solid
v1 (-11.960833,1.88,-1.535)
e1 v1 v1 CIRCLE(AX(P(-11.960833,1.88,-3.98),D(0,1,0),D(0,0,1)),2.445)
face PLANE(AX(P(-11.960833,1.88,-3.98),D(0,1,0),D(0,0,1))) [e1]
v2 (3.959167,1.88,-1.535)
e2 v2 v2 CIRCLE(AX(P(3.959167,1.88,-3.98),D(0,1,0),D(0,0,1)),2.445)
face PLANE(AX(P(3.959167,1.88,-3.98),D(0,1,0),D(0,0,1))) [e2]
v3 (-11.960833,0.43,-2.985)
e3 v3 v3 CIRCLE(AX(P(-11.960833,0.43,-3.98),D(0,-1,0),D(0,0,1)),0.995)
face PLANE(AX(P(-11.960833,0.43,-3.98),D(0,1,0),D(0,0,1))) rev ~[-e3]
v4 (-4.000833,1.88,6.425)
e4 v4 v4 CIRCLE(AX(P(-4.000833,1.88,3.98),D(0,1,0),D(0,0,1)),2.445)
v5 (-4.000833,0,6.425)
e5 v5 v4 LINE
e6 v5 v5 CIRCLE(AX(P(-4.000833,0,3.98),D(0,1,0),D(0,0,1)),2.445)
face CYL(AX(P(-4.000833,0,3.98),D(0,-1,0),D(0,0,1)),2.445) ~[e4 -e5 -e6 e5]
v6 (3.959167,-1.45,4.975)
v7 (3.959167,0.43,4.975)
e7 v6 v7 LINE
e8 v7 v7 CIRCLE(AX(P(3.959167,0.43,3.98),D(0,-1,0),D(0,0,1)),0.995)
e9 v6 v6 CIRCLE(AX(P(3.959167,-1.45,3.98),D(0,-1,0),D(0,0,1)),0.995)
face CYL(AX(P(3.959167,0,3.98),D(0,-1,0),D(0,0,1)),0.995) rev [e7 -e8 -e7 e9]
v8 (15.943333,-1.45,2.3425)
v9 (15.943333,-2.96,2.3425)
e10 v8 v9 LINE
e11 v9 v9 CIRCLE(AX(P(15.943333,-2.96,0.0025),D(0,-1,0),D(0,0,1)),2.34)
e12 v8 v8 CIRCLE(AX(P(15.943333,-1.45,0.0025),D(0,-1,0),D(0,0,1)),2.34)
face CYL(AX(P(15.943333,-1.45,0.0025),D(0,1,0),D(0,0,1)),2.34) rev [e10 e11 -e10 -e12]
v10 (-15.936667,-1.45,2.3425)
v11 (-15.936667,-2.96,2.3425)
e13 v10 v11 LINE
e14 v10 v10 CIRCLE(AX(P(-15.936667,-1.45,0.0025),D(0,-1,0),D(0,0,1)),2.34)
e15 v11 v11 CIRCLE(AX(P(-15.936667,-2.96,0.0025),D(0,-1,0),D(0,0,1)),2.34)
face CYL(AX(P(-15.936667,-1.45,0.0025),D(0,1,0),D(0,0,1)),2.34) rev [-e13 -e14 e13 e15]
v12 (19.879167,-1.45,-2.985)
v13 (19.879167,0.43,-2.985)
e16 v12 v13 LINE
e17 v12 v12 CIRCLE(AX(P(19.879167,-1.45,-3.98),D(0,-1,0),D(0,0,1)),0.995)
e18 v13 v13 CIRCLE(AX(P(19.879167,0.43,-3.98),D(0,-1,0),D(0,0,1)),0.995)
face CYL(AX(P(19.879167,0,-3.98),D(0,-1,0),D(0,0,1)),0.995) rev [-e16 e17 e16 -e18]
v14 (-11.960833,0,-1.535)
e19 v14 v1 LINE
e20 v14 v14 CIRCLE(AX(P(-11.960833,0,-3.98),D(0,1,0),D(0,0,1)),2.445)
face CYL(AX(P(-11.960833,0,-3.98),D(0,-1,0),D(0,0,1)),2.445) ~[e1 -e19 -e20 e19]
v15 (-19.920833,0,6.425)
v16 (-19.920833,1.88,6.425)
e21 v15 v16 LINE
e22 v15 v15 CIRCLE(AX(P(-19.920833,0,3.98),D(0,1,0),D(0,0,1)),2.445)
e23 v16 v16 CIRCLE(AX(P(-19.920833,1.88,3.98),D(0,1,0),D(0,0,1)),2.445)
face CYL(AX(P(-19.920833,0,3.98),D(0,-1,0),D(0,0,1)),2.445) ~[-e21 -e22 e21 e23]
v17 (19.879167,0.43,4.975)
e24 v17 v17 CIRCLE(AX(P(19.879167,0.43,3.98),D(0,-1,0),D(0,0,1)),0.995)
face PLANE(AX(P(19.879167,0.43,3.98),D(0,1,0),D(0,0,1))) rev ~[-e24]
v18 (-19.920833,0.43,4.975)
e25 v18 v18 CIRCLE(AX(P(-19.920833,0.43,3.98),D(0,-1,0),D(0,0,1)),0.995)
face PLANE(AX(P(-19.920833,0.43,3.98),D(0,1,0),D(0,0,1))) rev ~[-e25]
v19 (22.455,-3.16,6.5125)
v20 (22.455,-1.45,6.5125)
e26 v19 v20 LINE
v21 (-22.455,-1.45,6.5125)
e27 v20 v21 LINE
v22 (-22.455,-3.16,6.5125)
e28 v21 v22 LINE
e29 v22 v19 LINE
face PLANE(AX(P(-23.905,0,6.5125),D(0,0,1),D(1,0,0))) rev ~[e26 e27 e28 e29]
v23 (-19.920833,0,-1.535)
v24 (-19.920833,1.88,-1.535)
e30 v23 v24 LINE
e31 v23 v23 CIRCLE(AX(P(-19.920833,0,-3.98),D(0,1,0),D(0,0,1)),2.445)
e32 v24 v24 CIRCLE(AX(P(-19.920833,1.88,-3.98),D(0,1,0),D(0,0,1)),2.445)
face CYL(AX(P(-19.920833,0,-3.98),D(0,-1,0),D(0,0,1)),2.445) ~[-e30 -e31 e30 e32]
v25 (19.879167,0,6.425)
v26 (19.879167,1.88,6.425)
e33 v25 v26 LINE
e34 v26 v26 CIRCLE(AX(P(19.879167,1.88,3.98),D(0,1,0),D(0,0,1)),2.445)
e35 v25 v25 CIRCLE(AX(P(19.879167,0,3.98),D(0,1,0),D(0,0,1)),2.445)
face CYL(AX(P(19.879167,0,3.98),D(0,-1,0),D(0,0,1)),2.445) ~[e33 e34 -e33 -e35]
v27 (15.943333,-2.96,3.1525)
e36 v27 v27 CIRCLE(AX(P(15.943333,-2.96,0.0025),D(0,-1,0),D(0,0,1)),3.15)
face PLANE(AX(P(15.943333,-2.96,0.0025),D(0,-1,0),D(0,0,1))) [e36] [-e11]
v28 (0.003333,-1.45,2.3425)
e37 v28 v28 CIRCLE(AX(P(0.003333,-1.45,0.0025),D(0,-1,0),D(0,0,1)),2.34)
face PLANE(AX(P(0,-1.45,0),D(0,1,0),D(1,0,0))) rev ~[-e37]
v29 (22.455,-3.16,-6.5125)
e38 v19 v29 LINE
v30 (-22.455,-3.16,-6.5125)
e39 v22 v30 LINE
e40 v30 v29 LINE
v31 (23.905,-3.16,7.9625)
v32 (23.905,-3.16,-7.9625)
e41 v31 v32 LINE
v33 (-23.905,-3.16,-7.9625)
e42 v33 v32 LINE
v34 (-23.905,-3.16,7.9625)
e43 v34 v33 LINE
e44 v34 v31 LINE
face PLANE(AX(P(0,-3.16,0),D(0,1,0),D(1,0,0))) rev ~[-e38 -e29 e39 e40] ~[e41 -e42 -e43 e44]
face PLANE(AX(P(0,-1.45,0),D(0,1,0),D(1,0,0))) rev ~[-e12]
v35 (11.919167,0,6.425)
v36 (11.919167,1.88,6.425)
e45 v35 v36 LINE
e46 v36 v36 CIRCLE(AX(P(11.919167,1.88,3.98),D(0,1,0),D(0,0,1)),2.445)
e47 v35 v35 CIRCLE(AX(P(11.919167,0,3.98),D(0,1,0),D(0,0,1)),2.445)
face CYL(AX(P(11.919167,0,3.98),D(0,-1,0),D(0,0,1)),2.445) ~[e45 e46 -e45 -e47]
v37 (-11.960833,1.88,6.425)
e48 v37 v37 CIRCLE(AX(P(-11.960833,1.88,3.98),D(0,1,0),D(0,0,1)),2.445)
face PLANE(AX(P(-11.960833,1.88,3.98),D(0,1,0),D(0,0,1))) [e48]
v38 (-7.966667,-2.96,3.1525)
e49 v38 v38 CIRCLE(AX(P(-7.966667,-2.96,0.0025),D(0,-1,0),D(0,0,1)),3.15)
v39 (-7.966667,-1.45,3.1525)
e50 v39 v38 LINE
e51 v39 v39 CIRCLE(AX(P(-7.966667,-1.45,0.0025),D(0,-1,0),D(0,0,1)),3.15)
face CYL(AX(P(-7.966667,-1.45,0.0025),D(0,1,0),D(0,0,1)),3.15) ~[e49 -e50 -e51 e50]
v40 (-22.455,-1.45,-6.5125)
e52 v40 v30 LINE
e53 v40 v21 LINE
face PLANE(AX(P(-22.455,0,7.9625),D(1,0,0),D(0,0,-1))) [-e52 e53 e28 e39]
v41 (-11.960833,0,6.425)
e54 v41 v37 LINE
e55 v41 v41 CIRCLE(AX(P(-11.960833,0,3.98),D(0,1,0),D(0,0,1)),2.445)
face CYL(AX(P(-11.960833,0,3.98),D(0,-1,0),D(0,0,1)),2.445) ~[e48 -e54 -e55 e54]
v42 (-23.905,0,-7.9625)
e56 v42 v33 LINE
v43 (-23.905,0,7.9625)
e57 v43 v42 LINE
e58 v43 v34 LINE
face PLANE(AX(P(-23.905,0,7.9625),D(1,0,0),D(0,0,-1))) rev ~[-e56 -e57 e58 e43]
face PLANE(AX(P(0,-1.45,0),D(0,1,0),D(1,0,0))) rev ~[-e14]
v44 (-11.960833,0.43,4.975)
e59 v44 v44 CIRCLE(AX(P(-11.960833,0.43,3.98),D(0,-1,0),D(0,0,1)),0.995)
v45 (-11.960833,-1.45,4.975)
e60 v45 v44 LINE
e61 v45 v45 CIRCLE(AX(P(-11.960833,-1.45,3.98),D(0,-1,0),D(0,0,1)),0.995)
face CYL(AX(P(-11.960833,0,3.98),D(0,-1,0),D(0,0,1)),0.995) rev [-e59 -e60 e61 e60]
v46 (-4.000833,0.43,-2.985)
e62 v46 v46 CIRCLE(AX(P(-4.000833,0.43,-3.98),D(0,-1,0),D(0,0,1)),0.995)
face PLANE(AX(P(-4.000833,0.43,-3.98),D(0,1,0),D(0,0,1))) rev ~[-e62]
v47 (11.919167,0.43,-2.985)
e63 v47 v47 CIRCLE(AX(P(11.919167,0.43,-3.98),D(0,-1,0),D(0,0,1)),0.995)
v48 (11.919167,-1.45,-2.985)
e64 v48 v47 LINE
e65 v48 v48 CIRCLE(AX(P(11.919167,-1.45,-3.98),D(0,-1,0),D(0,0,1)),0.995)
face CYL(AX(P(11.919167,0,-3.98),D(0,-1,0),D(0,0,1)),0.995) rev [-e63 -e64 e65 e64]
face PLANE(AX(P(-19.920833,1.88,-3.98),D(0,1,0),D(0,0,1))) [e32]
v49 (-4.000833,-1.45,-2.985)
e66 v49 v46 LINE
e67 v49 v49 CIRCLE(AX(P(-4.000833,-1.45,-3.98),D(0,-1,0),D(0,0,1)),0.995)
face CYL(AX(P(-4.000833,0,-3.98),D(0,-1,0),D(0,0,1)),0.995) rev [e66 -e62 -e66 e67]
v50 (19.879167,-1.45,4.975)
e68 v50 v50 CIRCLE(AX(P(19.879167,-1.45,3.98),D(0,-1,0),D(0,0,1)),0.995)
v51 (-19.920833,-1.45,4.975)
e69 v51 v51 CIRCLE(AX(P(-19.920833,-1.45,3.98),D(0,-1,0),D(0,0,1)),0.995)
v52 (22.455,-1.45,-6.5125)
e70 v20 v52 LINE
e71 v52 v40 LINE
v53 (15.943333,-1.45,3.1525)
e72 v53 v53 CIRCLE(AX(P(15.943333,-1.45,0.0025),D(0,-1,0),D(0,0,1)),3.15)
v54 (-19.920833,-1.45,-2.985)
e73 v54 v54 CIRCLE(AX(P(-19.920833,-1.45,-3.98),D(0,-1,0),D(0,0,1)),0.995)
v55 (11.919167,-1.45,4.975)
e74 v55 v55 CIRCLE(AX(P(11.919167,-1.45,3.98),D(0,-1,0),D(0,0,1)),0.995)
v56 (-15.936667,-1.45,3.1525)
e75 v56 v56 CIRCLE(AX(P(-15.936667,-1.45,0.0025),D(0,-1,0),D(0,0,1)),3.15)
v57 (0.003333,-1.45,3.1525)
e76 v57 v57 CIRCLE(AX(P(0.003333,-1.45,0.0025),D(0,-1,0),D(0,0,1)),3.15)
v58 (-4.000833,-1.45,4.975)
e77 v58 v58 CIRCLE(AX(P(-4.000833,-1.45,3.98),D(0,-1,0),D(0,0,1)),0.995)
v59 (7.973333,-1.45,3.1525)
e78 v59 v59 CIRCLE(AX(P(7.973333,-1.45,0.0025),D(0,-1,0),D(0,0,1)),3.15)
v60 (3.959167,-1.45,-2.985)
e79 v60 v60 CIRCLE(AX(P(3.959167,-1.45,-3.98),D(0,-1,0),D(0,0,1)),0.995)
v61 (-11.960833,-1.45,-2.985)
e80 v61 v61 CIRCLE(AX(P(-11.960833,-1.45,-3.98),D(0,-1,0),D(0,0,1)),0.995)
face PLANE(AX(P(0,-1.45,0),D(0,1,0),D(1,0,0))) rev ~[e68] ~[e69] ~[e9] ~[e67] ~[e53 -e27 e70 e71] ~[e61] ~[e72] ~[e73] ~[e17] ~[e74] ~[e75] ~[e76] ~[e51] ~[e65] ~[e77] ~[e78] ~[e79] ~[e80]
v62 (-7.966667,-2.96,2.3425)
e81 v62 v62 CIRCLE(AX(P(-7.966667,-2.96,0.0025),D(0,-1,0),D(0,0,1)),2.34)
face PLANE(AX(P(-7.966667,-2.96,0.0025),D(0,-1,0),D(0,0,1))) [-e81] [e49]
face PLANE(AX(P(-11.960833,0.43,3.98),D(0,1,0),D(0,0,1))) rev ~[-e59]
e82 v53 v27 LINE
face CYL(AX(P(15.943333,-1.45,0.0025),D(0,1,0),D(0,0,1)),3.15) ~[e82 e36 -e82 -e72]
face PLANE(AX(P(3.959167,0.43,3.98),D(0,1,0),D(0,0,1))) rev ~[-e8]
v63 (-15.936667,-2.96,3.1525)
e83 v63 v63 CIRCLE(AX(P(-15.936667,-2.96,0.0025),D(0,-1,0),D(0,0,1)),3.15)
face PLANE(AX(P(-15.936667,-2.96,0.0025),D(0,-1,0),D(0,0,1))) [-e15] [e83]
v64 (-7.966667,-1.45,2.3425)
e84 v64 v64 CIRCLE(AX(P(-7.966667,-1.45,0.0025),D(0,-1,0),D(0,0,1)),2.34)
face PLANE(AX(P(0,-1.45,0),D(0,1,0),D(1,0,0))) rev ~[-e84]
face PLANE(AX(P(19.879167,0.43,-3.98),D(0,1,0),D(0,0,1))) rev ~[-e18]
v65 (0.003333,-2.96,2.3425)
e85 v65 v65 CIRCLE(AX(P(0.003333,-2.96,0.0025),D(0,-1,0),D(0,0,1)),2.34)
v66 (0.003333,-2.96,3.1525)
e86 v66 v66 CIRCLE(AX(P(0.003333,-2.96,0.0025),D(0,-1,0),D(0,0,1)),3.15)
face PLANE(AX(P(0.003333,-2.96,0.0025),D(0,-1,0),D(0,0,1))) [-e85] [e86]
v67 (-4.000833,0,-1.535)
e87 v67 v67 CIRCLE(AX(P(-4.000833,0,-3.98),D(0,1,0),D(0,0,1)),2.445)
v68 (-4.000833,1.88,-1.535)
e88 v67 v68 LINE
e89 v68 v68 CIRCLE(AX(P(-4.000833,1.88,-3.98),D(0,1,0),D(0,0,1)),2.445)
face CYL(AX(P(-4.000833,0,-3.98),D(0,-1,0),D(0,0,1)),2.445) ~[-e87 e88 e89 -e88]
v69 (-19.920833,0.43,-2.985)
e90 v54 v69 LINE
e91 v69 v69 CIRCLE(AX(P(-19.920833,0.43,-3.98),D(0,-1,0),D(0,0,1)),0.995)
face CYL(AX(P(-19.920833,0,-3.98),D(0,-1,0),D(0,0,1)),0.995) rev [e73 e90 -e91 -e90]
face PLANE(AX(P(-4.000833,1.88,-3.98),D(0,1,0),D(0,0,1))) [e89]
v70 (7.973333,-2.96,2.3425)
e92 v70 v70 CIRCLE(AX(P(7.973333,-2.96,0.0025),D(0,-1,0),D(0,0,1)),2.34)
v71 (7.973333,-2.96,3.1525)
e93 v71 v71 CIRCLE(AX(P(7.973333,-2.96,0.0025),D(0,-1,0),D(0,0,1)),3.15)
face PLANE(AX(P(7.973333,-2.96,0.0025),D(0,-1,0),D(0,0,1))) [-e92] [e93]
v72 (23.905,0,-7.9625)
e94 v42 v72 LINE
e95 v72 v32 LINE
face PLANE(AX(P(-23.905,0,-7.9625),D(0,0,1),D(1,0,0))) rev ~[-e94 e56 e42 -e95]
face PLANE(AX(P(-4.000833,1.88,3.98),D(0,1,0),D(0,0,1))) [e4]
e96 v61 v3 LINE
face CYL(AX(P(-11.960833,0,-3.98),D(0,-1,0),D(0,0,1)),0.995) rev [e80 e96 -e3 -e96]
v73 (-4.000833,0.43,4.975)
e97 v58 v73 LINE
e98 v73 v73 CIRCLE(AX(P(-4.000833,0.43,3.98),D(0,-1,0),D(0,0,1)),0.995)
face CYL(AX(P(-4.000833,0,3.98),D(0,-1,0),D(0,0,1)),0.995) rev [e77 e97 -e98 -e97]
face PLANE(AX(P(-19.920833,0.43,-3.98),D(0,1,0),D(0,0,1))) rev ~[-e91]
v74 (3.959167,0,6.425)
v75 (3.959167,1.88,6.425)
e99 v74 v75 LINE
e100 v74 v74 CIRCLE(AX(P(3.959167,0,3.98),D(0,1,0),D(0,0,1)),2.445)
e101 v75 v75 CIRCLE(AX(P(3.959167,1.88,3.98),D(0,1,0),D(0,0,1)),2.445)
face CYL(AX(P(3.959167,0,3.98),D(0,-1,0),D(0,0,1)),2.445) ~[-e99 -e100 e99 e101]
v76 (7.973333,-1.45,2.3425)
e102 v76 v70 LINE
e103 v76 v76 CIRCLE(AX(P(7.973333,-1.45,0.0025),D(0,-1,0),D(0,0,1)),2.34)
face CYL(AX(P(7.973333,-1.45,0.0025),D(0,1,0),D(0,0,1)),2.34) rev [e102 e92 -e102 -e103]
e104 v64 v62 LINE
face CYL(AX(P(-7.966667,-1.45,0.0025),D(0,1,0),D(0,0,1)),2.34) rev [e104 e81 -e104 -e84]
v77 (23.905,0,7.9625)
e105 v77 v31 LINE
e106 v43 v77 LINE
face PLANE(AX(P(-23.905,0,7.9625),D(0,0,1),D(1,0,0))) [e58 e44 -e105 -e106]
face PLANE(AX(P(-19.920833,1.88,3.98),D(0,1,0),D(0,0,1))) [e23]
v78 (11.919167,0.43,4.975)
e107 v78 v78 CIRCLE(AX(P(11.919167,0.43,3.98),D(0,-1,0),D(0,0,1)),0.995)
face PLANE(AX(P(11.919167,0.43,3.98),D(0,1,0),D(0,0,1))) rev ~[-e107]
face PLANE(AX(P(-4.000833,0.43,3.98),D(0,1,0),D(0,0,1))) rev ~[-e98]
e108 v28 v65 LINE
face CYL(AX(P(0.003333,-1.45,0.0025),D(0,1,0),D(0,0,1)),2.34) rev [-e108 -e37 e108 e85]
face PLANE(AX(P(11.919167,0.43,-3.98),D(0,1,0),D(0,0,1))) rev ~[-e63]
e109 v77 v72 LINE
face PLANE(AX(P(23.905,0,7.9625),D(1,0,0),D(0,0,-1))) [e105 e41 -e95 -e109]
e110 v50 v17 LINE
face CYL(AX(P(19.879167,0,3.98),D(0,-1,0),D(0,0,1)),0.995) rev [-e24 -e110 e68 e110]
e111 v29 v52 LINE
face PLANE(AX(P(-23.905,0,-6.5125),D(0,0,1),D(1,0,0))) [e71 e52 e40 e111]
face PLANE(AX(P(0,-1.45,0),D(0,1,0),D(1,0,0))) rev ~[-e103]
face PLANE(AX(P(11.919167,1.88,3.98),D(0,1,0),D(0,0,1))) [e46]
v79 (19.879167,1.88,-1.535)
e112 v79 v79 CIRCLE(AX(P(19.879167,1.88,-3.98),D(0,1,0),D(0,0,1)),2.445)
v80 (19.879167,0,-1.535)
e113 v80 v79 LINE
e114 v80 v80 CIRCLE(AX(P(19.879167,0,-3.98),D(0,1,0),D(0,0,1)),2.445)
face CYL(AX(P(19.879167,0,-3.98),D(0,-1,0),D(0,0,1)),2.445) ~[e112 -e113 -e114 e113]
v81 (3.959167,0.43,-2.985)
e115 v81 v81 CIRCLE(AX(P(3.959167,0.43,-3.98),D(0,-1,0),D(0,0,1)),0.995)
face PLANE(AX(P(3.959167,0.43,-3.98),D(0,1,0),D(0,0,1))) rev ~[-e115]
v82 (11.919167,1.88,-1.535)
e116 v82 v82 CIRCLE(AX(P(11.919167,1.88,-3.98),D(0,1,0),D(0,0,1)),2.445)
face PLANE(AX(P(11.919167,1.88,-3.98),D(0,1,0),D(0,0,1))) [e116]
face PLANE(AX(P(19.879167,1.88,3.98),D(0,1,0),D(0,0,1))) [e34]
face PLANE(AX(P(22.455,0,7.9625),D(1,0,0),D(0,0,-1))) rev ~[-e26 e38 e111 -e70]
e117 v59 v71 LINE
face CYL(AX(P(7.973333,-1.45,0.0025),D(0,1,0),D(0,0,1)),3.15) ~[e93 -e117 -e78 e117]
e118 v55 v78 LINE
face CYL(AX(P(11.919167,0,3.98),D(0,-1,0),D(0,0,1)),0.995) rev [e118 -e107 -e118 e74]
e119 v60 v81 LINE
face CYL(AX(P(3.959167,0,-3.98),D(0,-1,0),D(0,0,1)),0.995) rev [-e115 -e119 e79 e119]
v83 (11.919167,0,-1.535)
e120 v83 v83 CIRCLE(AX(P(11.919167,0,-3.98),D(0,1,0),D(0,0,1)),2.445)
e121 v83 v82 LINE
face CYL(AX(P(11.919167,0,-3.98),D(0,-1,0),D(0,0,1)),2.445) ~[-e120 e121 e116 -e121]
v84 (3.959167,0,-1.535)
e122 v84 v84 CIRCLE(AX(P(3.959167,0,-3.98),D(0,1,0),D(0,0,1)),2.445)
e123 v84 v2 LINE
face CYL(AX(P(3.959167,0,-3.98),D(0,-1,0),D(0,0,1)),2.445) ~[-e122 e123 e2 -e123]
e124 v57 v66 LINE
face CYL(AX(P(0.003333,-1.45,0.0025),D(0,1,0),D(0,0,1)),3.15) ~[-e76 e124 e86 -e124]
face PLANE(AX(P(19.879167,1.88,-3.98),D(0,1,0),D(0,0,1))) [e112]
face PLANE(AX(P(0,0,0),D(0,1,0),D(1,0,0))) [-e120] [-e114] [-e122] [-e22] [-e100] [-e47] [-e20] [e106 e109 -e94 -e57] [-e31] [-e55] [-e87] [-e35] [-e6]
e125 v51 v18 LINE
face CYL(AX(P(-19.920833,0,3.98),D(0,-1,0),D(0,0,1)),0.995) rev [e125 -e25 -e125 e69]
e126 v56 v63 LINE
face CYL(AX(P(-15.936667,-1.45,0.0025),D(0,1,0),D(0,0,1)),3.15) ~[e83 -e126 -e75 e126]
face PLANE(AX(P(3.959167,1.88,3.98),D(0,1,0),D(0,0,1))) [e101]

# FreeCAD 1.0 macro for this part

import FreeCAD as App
import Part
import Sketcher

V = App.Vector


def faces_at(feature, points):
    """Names of the faces that lie closest to the given points."""
    faces = feature.Shape.Faces
    near = lambda p: min(range(len(faces)), key=lambda i: faces[i].distToShape(Part.Vertex(*p))[0])
    return sorted({f"Face{near(p) + 1}" for p in points})


def add_polygon(sketch, points):
    """Adds a closed chain of lines whose ends are joined by coincident constraints."""
    first, n = sketch.GeometryCount, len(points)
    for a, b in zip(points, points[1:] + points[:1]):
        sketch.addGeometry(Part.LineSegment(App.Vector(*a, 0), App.Vector(*b, 0)), False)
    for i in range(n):
        sketch.addConstraint(Sketcher.Constraint("Coincident", first + i, 2, first + (i + 1) % n, 1))

doc = App.newDocument("Part")
body = doc.addObject("PartDesign::Body", "Body")

# Sketch on XZ plane
sketch1 = body.newObject("Sketcher::SketchObject", "Sketch")
sketch1.AttachmentSupport = (doc.getObject("XZ_Plane"), [""])
sketch1.MapMode = "FlatFace"
add_polygon(sketch1, [(-24, -8), (-24, 8), (24, 8), (24, -8)])  # lines 0-3
sketch1.addConstraint([
    Sketcher.Constraint("Vertical", 0),
    Sketcher.Constraint("Horizontal", 1),
    Sketcher.Constraint("Vertical", 2),
    Sketcher.Constraint("Horizontal", 3),
    Sketcher.Constraint("Symmetric", 0, 2, 2, 2, -1, 1),
    Sketcher.Constraint("DistanceX", 1, 1, 1, 2, 47.81),
    Sketcher.Constraint("DistanceY", 0, 1, 0, 2, 15.925),
])
pad1 = body.newObject("PartDesign::Pad", "Pad")
pad1.Profile = sketch1
pad1.Length = 3.16

# Sketch on XZ plane
sketch2 = body.newObject("Sketcher::SketchObject", "Sketch001")
sketch2.AttachmentSupport = (doc.getObject("XZ_Plane"), [""])
sketch2.MapMode = "FlatFace"
sketch2.addGeometry([
    Part.Circle(V(-19.9, -4, 0), V(0, 0, 1), 2.4),  # 0
    Part.Circle(V(-12, -4, 0), V(0, 0, 1), 2.4),  # 1
    Part.Circle(V(-4, -4, 0), V(0, 0, 1), 2.4),  # 2
    Part.Circle(V(4, -4, 0), V(0, 0, 1), 2.4),  # 3
    Part.Circle(V(11.9, -4, 0), V(0, 0, 1), 2.4),  # 4
    Part.Circle(V(19.9, -4, 0), V(0, 0, 1), 2.4),  # 5
    Part.Circle(V(-12, 4, 0), V(0, 0, 1), 2.4),  # 6
    Part.Circle(V(-4, 4, 0), V(0, 0, 1), 2.4),  # 7
    Part.Circle(V(4, 4, 0), V(0, 0, 1), 2.4),  # 8
    Part.Circle(V(11.9, 4, 0), V(0, 0, 1), 2.4),  # 9
    Part.Circle(V(19.9, 4, 0), V(0, 0, 1), 2.4),  # 10
    Part.Circle(V(-19.9, 4, 0), V(0, 0, 1), 2.4),  # 11
], False)
sketch2.addConstraint([
    Sketcher.Constraint("Equal", 0, 1),
    Sketcher.Constraint("Equal", 1, 2),
    Sketcher.Constraint("Equal", 2, 3),
    Sketcher.Constraint("Equal", 3, 4),
    Sketcher.Constraint("Equal", 4, 5),
    Sketcher.Constraint("Equal", 5, 6),
    Sketcher.Constraint("Equal", 6, 7),
    Sketcher.Constraint("Equal", 7, 8),
    Sketcher.Constraint("Equal", 8, 9),
    Sketcher.Constraint("Equal", 9, 10),
    Sketcher.Constraint("Equal", 10, 11),
    Sketcher.Constraint("Symmetric", 1, 3, 6, 3, -1),
    Sketcher.Constraint("Symmetric", 2, 3, 7, 3, -1),
    Sketcher.Constraint("Symmetric", 3, 3, 8, 3, -1),
    Sketcher.Constraint("Symmetric", 4, 3, 9, 3, -1),
    Sketcher.Constraint("Symmetric", 5, 3, 10, 3, -1),
    Sketcher.Constraint("Symmetric", 0, 3, 11, 3, -1),
    Sketcher.Constraint("Horizontal", 0, 3, 1, 3),
    Sketcher.Constraint("Horizontal", 1, 3, 2, 3),
    Sketcher.Constraint("Horizontal", 2, 3, 3, 3),
    Sketcher.Constraint("Horizontal", 3, 3, 4, 3),
    Sketcher.Constraint("Horizontal", 4, 3, 5, 3),
    Sketcher.Constraint("Diameter", 0, 4.89),
    Sketcher.Constraint("DistanceX", 0, 3, 5, 3, 39.8),
    Sketcher.Constraint("DistanceY", 0, 3, -1, 1, 3.98),
    Sketcher.Constraint("DistanceX", 0, 3, 1, 3, 7.96),
    Sketcher.Constraint("DistanceX", 1, 3, 2, 3, 7.96),
    Sketcher.Constraint("DistanceX", 2, 3, 3, 3, 7.96),
    Sketcher.Constraint("DistanceX", 3, 3, 4, 3, 7.96),
    Sketcher.Constraint("DistanceX", 0, 3, -1, 1, 19.920833),
])
pad2 = body.newObject("PartDesign::Pad", "Pad001")
pad2.Profile = sketch2
pad2.Length = 1.88
pad2.Reversed = True
doc.recompute()

thickness = body.newObject("PartDesign::Thickness", "Thickness")
thickness.Base = (pad2, faces_at(pad2, [(0, -3.16, 0)]))
thickness.Value = 1.45
thickness.Reversed = True
thickness.Join = "Intersection"

# Sketch on XZ plane
sketch3 = body.newObject("Sketcher::SketchObject", "Sketch002")
sketch3.AttachmentSupport = (doc.getObject("XZ_Plane"), [""])
sketch3.MapMode = "FlatFace"
sketch3.AttachmentOffset = App.Placement(V(0, 0, 1.45), App.Rotation())
sketch3.addGeometry([
    Part.Circle(V(-15.9, 0, 0), V(0, 0, 1), 3.1),  # 0
    Part.Circle(V(-15.9, 0, 0), V(0, 0, 1), 2.3),  # 1
    Part.Circle(V(-8, 0, 0), V(0, 0, 1), 3.1),  # 2
    Part.Circle(V(-8, 0, 0), V(0, 0, 1), 2.3),  # 3
    Part.Circle(V(0, 0, 0), V(0, 0, 1), 3.1),  # 4
    Part.Circle(V(0, 0, 0), V(0, 0, 1), 2.3),  # 5
    Part.Circle(V(8, 0, 0), V(0, 0, 1), 3.1),  # 6
    Part.Circle(V(8, 0, 0), V(0, 0, 1), 2.3),  # 7
    Part.Circle(V(15.9, 0, 0), V(0, 0, 1), 3.1),  # 8
    Part.Circle(V(15.9, 0, 0), V(0, 0, 1), 2.3),  # 9
], False)
sketch3.addConstraint([
    Sketcher.Constraint("Coincident", 1, 3, 0, 3),
    Sketcher.Constraint("Coincident", 3, 3, 2, 3),
    Sketcher.Constraint("Coincident", 5, 3, 4, 3),
    Sketcher.Constraint("Coincident", 7, 3, 6, 3),
    Sketcher.Constraint("Coincident", 9, 3, 8, 3),
    Sketcher.Constraint("Equal", 0, 2),
    Sketcher.Constraint("Equal", 1, 3),
    Sketcher.Constraint("Equal", 2, 4),
    Sketcher.Constraint("Equal", 3, 5),
    Sketcher.Constraint("Equal", 4, 6),
    Sketcher.Constraint("Equal", 5, 7),
    Sketcher.Constraint("Equal", 6, 8),
    Sketcher.Constraint("Equal", 7, 9),
    Sketcher.Constraint("Horizontal", 1, 3, 2, 3),
    Sketcher.Constraint("Horizontal", 3, 3, 4, 3),
    Sketcher.Constraint("Horizontal", 5, 3, 6, 3),
    Sketcher.Constraint("Horizontal", 7, 3, 8, 3),
    Sketcher.Constraint("Diameter", 0, 6.3),
    Sketcher.Constraint("Diameter", 1, 4.68),
    Sketcher.Constraint("DistanceX", 0, 3, 2, 3, 7.97),
    Sketcher.Constraint("DistanceX", 2, 3, 4, 3, 7.97),
    Sketcher.Constraint("DistanceX", 4, 3, 6, 3, 7.97),
    Sketcher.Constraint("DistanceX", 6, 3, 8, 3, 7.97),
    Sketcher.Constraint("DistanceY", -1, 1, 0, 3, 0.0025),
    Sketcher.Constraint("DistanceX", 0, 3, -1, 1, 15.936667),
])
pad3 = body.newObject("PartDesign::Pad", "Pad002")
pad3.Profile = sketch3
pad3.Length = 1.51

doc.recompute()
